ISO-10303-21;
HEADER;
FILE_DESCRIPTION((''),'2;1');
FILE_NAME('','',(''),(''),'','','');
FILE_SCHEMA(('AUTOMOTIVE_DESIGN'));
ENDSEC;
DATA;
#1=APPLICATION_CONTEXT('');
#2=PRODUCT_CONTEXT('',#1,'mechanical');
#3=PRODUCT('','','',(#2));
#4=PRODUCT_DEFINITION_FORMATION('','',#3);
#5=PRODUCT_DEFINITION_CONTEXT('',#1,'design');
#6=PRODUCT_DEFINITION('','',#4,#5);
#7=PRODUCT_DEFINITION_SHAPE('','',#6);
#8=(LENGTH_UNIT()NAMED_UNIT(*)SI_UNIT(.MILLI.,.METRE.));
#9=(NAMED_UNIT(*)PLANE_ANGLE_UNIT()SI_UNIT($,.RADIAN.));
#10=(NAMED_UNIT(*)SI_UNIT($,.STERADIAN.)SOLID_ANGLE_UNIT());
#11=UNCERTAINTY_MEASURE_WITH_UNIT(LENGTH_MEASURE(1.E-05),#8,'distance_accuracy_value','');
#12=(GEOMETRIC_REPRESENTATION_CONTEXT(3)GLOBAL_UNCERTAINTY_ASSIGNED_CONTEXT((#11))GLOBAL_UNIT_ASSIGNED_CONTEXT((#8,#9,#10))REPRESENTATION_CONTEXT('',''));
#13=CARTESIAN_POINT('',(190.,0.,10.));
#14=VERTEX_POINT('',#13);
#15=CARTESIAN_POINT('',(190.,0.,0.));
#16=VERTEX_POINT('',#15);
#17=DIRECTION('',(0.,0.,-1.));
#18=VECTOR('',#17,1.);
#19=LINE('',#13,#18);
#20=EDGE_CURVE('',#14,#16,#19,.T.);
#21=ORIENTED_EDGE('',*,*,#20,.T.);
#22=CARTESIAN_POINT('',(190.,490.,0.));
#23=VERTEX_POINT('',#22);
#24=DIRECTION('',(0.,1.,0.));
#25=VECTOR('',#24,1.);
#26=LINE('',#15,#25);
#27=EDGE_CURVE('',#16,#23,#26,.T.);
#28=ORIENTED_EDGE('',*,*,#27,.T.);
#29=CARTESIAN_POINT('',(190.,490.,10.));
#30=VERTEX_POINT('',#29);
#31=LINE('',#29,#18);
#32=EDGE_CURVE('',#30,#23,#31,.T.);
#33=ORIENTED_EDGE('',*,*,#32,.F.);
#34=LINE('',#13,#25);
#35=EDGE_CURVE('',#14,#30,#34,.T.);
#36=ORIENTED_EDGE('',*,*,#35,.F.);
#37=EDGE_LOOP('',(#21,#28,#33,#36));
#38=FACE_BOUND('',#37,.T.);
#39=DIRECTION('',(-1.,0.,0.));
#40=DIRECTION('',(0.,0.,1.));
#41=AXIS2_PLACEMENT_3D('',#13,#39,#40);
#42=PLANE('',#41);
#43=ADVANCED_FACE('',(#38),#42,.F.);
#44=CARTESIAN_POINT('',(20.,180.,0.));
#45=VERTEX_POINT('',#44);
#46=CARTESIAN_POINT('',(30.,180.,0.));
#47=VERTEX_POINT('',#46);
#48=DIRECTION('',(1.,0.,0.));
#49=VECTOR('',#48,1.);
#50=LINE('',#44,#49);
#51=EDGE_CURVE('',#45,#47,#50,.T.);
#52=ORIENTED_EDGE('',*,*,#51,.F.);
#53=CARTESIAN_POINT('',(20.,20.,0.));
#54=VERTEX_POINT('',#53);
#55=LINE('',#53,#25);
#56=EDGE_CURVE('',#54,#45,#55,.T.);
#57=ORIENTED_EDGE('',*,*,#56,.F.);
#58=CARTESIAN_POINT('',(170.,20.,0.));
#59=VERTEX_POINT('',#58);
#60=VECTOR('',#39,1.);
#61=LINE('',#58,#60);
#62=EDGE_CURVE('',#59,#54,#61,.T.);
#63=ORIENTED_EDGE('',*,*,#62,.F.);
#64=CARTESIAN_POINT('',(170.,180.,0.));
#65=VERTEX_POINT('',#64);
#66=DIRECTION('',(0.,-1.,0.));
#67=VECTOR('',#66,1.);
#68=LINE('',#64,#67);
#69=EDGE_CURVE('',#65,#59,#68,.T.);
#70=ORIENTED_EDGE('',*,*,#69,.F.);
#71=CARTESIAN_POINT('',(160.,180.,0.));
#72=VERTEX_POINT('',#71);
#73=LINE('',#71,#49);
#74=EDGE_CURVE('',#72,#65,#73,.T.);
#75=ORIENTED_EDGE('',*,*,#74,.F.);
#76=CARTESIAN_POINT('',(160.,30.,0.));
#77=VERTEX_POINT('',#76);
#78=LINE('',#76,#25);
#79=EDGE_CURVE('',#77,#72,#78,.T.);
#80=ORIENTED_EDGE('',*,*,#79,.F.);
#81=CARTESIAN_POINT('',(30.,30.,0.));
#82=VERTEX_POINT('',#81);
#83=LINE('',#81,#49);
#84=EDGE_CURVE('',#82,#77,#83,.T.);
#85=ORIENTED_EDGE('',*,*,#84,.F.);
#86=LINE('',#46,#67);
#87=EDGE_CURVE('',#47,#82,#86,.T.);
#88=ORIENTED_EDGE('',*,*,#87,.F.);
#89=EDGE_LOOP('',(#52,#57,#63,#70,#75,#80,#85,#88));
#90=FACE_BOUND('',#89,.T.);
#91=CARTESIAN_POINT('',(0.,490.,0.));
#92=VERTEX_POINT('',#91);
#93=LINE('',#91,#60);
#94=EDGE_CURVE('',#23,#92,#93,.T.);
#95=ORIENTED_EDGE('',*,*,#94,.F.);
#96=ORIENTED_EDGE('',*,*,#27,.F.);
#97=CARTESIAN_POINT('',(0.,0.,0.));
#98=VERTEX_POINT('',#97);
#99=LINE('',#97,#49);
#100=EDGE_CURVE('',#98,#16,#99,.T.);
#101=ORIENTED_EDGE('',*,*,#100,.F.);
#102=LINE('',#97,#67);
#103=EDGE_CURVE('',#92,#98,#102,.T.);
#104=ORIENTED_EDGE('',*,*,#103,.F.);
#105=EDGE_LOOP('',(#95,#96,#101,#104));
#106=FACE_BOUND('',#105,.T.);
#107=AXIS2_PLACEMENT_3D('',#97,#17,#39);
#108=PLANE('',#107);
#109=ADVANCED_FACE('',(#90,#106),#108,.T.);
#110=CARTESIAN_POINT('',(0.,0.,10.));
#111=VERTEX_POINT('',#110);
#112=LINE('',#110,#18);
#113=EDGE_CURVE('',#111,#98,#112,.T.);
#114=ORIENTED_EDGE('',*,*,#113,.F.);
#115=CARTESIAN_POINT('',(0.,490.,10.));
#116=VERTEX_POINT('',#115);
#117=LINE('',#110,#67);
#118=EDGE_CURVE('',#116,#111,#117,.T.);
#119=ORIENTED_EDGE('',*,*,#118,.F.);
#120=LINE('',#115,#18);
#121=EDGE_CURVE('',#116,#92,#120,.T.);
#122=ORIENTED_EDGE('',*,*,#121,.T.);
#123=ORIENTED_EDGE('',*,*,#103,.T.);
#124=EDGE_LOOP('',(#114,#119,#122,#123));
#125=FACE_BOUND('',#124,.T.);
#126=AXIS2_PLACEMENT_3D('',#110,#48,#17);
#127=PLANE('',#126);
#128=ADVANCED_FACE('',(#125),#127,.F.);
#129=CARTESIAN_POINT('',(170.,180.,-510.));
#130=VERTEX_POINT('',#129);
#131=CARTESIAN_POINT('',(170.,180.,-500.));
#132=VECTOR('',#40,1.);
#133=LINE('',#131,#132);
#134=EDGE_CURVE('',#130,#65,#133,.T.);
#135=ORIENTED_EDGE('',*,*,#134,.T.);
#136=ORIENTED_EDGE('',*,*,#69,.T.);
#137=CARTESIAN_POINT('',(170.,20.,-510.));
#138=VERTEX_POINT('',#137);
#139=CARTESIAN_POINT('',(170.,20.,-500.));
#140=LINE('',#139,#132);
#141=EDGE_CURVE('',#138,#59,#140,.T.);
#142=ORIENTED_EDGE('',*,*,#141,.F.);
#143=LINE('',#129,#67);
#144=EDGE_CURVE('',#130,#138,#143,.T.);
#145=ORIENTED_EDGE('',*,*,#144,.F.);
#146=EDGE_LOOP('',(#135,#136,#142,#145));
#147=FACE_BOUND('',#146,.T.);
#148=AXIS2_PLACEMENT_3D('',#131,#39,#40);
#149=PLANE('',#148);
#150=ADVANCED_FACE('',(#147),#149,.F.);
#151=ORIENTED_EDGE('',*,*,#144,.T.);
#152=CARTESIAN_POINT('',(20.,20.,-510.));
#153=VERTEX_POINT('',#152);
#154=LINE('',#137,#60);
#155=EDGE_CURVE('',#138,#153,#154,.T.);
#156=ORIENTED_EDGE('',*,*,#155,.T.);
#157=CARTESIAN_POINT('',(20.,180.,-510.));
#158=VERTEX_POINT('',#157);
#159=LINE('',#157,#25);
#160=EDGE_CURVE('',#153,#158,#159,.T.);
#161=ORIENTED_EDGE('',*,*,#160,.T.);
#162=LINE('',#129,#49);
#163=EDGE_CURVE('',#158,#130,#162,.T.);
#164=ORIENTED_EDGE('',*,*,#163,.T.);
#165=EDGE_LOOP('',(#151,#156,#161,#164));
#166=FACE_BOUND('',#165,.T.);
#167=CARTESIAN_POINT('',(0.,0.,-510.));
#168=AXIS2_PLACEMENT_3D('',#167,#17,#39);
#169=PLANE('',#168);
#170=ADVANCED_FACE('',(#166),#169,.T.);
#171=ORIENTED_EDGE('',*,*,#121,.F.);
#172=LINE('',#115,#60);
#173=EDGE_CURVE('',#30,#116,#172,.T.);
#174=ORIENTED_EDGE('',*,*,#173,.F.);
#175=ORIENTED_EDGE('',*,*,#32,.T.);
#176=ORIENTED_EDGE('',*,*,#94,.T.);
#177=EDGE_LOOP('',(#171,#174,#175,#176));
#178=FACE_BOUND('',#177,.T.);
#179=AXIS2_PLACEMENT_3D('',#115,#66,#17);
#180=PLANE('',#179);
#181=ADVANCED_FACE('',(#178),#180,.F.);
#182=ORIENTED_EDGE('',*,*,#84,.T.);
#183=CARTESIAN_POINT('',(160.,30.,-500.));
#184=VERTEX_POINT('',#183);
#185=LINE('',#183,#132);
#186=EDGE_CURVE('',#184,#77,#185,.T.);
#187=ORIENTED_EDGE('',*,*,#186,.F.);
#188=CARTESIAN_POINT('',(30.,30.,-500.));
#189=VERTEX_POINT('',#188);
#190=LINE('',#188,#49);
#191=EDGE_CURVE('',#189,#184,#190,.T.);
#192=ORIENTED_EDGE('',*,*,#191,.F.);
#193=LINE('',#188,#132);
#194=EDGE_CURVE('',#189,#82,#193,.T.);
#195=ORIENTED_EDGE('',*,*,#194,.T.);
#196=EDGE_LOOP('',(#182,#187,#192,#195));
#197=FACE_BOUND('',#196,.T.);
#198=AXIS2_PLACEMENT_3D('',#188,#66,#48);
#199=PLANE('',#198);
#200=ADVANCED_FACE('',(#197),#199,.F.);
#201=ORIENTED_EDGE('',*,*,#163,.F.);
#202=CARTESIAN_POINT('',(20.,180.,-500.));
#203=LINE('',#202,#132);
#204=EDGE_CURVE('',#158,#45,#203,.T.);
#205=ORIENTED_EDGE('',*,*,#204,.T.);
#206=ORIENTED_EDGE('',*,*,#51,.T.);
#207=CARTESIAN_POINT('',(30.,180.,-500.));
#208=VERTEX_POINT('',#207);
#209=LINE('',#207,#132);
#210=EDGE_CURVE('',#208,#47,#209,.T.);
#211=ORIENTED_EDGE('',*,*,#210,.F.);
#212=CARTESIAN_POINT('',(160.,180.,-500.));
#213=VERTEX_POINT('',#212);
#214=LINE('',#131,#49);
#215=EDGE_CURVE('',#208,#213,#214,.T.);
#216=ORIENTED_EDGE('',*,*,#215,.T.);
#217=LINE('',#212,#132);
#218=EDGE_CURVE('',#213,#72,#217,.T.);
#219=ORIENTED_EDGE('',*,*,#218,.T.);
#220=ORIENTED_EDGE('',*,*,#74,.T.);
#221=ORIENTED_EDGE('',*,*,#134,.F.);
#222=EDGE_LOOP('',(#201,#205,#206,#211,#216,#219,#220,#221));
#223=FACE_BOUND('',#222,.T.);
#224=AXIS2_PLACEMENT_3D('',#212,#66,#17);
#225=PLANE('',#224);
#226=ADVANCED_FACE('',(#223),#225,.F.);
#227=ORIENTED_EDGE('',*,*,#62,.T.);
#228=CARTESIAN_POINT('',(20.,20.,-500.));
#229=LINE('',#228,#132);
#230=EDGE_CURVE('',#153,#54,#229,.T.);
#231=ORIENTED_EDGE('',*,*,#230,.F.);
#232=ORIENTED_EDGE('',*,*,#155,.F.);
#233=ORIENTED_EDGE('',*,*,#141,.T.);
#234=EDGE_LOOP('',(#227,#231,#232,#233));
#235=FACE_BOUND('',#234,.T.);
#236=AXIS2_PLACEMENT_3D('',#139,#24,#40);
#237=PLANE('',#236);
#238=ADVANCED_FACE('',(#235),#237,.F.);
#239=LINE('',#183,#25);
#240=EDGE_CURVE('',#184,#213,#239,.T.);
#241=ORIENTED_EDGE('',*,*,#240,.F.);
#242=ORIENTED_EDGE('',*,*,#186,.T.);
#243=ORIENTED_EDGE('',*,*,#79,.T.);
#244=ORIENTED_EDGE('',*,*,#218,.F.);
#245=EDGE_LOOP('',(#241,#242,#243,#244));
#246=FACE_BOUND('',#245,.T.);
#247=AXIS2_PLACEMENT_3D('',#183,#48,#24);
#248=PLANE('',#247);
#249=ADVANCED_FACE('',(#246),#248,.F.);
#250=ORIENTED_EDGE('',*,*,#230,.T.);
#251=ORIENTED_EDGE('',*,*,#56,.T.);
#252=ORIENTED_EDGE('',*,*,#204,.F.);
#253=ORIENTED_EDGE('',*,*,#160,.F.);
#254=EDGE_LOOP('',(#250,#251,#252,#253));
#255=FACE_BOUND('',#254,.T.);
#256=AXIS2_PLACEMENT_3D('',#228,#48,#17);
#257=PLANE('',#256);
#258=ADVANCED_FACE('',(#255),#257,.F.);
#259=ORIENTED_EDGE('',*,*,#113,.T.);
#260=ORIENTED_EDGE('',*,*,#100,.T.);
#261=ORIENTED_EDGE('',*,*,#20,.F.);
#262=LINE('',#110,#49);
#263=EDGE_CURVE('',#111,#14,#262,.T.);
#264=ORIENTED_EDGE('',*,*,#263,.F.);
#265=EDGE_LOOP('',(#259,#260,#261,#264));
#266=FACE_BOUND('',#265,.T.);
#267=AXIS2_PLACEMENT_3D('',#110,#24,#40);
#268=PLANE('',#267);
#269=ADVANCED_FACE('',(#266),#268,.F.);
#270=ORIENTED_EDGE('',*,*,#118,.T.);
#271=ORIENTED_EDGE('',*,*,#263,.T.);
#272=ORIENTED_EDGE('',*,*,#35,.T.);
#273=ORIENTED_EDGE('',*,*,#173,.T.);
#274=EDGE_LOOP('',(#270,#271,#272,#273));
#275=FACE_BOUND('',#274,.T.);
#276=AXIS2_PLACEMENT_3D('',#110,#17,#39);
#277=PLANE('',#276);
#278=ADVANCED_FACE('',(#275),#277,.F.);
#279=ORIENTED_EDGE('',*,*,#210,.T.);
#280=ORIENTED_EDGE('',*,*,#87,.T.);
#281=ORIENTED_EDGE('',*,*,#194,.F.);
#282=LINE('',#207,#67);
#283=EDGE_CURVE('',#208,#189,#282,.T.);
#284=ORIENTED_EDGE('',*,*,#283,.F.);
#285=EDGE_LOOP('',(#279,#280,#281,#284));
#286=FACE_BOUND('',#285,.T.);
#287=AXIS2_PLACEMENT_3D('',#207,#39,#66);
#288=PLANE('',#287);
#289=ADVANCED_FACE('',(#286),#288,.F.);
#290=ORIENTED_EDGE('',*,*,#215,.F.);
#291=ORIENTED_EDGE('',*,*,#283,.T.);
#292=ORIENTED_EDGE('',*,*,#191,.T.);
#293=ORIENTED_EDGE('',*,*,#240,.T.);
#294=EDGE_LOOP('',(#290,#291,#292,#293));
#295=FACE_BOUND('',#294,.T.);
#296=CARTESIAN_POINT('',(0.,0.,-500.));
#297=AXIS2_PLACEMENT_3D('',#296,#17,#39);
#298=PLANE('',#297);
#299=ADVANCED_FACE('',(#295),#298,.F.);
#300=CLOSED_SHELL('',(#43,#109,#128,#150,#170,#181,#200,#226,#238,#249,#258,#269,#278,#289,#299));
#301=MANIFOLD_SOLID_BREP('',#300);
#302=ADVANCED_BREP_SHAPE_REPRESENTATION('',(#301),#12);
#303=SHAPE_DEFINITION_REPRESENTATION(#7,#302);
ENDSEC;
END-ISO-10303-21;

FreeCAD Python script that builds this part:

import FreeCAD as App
import Part
import Sketcher
Q = App.Units.Quantity


def add_polygon(sketch, points):
    """Adds a closed chain of lines whose ends are joined by coincident constraints."""
    first, n = sketch.GeometryCount, len(points)
    for a, b in zip(points, points[1:] + points[:1]):
        sketch.addGeometry(Part.LineSegment(App.Vector(*a, 0), App.Vector(*b, 0)), False)
    for i in range(n):
        sketch.addConstraint(Sketcher.Constraint("Coincident", first + i, 2, first + (i + 1) % n, 1))

doc = App.newDocument("Part")
body = doc.addObject("PartDesign::Body", "Body")

# Sketch on XY plane
sketch1 = body.newObject("Sketcher::SketchObject", "Sketch")
sketch1.AttachmentSupport = (doc.getObject("XY_Plane"), [""])
sketch1.MapMode = "FlatFace"
add_polygon(sketch1, [(0, 490), (0, 0), (190, 0), (190, 490)])  # lines 0-3
sketch1.addConstraint(Sketcher.Constraint("Vertical", 0))
sketch1.addConstraint(Sketcher.Constraint("Horizontal", 1))
sketch1.addConstraint(Sketcher.Constraint("Vertical", 2))
sketch1.addConstraint(Sketcher.Constraint("Horizontal", 3))
sketch1.addConstraint(Sketcher.Constraint("Coincident", 0, 2, -1, 1))
sketch1.addConstraint(Sketcher.Constraint("DistanceX", 1, 1, 1, 2, Q("190 mm")))
sketch1.addConstraint(Sketcher.Constraint("DistanceY", 0, 2, 0, 1, Q("490 mm")))
pad1 = body.newObject("PartDesign::Pad", "Pad")
pad1.Profile = sketch1
pad1.Length = 10

# Sketch on XY plane
sketch2 = body.newObject("Sketcher::SketchObject", "Sketch001")
sketch2.AttachmentSupport = (doc.getObject("XY_Plane"), [""])
sketch2.MapMode = "FlatFace"
add_polygon(sketch2, [(170, 180), (170, 20), (20, 20), (20, 180), (30, 180), (30, 30), (160, 30), (160, 180)])  # lines 0-7
sketch2.addConstraint(Sketcher.Constraint("Vertical", 0))
sketch2.addConstraint(Sketcher.Constraint("Horizontal", 1))
sketch2.addConstraint(Sketcher.Constraint("Vertical", 2))
sketch2.addConstraint(Sketcher.Constraint("Horizontal", 3))
sketch2.addConstraint(Sketcher.Constraint("Vertical", 4))
sketch2.addConstraint(Sketcher.Constraint("Horizontal", 5))
sketch2.addConstraint(Sketcher.Constraint("Vertical", 6))
sketch2.addConstraint(Sketcher.Constraint("Horizontal", 7))
sketch2.addConstraint(Sketcher.Constraint("Horizontal", 3, 2, 6, 2))
sketch2.addConstraint(Sketcher.Constraint("Equal", 3, 7))
sketch2.addConstraint(Sketcher.Constraint("Equal", 1, 4))
sketch2.addConstraint(Sketcher.Constraint("DistanceX", 1, 2, 1, 1, Q("150 mm")))
sketch2.addConstraint(Sketcher.Constraint("DistanceX", 3, 1, 3, 2, Q("10 mm")))
sketch2.addConstraint(Sketcher.Constraint("DistanceY", 0, 2, 0, 1, Q("160 mm")))
sketch2.addConstraint(Sketcher.Constraint("DistanceX", -1, 1, 0, 2, Q("170 mm")))
sketch2.addConstraint(Sketcher.Constraint("DistanceY", -1, 1, 0, 2, Q("20 mm")))
pad2 = body.newObject("PartDesign::Pad", "Pad001")
pad2.Profile = sketch2
pad2.Length = 500
pad2.Reversed = True

# Sketch on XY plane
sketch3 = body.newObject("Sketcher::SketchObject", "Sketch002")
sketch3.AttachmentSupport = (doc.getObject("XY_Plane"), [""])
sketch3.MapMode = "FlatFace"
sketch3.AttachmentOffset = App.Placement(App.Vector(0, 0, -500), App.Rotation())
add_polygon(sketch3, [(170, 180), (170, 20), (20, 20), (20, 180)])  # lines 0-3
sketch3.addConstraint(Sketcher.Constraint("Vertical", 0))
sketch3.addConstraint(Sketcher.Constraint("Horizontal", 1))
sketch3.addConstraint(Sketcher.Constraint("Vertical", 2))
sketch3.addConstraint(Sketcher.Constraint("Horizontal", 3))
sketch3.addConstraint(Sketcher.Constraint("DistanceX", 1, 2, 1, 1, Q("150 mm")))
sketch3.addConstraint(Sketcher.Constraint("DistanceY", 0, 2, 0, 1, Q("160 mm")))
sketch3.addConstraint(Sketcher.Constraint("DistanceX", -1, 1, 0, 2, Q("170 mm")))
sketch3.addConstraint(Sketcher.Constraint("DistanceY", -1, 1, 0, 2, Q("20 mm")))
pad3 = body.newObject("PartDesign::Pad", "Pad002")
pad3.Profile = sketch3
pad3.Length = 10
pad3.Reversed = True

doc.recompute()
